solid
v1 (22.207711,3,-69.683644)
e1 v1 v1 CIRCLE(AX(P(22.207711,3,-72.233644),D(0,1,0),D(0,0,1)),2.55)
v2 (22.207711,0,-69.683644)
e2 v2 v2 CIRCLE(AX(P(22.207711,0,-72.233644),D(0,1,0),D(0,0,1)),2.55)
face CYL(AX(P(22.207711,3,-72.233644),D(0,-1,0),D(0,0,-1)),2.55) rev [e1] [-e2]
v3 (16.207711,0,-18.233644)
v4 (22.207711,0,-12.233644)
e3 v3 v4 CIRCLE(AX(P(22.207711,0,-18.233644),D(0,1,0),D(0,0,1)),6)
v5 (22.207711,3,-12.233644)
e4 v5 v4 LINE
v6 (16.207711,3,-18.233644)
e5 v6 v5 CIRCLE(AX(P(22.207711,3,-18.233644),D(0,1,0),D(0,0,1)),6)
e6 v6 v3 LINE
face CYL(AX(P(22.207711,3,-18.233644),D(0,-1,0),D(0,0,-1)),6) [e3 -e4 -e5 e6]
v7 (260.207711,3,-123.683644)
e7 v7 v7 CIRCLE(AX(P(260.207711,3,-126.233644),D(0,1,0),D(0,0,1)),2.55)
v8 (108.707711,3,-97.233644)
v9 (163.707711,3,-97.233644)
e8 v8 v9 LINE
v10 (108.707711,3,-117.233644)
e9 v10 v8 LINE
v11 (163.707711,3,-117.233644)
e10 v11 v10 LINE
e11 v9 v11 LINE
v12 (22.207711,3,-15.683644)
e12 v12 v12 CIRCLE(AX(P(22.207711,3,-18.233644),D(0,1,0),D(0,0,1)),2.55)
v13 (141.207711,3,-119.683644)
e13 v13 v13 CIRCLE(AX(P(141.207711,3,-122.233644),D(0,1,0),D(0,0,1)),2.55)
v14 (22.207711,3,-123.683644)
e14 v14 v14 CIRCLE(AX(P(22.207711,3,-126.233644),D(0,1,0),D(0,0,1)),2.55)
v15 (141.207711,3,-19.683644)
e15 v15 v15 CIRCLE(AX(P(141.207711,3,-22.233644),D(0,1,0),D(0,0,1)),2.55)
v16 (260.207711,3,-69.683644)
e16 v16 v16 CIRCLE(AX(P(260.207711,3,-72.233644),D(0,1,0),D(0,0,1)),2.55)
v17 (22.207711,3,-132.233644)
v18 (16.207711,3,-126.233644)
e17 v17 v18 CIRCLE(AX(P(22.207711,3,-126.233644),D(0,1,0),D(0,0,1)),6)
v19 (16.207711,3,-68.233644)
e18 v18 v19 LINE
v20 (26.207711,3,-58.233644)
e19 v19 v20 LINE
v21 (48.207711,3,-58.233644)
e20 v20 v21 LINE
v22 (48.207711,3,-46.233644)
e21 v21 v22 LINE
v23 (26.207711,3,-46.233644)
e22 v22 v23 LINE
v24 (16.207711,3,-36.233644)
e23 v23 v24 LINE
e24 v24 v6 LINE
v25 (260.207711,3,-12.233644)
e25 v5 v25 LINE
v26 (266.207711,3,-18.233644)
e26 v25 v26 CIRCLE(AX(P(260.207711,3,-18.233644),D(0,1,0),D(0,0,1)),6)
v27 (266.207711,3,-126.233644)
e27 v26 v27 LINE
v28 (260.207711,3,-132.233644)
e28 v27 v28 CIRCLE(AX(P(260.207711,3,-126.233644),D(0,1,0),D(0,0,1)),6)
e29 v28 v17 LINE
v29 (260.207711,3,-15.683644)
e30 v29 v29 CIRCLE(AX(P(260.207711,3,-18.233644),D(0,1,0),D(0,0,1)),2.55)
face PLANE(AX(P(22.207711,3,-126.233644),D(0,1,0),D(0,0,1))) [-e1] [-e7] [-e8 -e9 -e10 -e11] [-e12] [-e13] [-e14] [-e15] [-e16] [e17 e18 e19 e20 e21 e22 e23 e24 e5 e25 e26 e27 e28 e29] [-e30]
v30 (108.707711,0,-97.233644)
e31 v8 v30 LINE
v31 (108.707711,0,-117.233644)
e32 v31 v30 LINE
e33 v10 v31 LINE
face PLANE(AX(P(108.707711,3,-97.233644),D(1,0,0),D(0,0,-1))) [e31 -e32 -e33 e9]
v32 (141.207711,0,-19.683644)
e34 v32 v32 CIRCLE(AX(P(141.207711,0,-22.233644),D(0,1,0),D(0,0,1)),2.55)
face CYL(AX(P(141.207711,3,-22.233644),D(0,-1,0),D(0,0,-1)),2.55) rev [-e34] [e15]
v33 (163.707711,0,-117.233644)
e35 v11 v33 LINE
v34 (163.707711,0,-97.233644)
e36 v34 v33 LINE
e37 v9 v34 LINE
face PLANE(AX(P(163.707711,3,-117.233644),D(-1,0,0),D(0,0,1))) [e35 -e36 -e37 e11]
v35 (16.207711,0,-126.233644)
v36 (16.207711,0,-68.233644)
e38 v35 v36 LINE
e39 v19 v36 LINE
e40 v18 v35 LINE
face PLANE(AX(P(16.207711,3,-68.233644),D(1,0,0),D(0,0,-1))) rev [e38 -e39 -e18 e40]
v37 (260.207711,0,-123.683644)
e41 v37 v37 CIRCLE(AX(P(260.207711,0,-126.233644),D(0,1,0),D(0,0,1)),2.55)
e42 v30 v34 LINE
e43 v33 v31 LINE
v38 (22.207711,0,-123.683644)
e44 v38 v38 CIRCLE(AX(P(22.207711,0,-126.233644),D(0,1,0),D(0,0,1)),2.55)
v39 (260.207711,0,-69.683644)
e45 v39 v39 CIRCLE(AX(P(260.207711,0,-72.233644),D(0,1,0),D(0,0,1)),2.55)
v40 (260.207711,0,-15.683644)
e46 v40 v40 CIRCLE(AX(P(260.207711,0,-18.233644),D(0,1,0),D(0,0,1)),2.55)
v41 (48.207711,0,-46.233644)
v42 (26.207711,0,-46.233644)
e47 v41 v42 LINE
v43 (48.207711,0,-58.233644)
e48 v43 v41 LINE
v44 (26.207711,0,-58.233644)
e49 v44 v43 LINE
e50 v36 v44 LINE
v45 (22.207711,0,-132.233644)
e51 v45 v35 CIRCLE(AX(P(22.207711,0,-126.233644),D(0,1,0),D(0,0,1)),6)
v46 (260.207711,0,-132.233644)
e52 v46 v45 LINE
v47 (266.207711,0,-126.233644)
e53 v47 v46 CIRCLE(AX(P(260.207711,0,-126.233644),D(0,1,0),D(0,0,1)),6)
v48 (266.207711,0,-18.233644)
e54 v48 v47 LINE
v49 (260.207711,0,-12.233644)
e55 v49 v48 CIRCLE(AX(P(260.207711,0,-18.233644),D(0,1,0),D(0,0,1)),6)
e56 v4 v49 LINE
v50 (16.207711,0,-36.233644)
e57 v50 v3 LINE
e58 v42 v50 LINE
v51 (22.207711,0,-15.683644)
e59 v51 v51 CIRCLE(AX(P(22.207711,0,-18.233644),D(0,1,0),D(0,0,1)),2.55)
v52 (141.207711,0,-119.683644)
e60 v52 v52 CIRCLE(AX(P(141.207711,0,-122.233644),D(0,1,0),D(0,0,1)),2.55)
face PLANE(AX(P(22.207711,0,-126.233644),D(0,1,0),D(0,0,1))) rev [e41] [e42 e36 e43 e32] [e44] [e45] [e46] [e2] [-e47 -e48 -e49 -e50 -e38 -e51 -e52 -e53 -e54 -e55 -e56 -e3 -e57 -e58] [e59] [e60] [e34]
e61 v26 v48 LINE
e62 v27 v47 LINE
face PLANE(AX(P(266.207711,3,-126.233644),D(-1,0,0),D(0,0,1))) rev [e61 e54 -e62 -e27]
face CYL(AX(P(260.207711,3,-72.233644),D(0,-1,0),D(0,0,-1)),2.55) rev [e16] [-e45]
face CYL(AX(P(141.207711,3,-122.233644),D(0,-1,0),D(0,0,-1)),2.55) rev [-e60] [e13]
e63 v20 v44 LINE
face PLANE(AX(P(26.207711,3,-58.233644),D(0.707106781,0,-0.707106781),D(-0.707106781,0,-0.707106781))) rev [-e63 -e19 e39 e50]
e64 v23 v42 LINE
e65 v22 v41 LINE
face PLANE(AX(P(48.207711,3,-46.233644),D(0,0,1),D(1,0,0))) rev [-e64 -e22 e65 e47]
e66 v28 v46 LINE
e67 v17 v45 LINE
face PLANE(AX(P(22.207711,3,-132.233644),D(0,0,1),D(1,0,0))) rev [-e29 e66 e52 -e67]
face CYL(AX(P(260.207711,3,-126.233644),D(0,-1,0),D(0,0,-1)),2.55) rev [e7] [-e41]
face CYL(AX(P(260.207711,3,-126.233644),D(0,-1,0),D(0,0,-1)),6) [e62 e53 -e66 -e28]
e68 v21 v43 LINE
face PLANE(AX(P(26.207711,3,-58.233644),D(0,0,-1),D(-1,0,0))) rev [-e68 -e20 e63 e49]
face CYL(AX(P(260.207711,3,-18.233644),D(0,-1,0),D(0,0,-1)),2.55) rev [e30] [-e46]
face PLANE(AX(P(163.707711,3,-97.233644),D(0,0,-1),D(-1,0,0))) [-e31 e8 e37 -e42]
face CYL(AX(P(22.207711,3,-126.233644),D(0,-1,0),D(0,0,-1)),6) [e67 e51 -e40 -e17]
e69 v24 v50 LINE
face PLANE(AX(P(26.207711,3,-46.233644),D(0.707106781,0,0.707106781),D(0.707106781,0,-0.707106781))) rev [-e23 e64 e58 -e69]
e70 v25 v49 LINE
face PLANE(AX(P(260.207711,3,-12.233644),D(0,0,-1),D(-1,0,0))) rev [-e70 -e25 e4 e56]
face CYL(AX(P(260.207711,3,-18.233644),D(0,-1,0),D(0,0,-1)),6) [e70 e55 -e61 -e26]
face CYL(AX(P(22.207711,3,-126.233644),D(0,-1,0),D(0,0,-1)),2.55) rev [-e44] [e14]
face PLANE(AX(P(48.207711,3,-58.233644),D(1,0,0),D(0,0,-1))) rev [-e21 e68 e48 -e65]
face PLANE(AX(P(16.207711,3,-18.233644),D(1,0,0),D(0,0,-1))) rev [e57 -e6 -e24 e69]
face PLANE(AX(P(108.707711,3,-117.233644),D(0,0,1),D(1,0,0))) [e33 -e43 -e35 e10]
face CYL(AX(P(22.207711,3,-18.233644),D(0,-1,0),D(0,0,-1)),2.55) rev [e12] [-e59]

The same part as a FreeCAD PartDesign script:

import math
import FreeCAD as App
import Part
import Sketcher

V = App.Vector


def add_polygon(sketch, points):
    """Adds a closed chain of lines whose ends are joined by coincident constraints."""
    first, n = sketch.GeometryCount, len(points)
    for a, b in zip(points, points[1:] + points[:1]):
        sketch.addGeometry(Part.LineSegment(App.Vector(*a, 0), App.Vector(*b, 0)), False)
    for i in range(n):
        sketch.addConstraint(Sketcher.Constraint("Coincident", first + i, 2, first + (i + 1) % n, 1))

doc = App.newDocument("Part")
body = doc.addObject("PartDesign::Body", "Body")

# Sketch on XZ plane
sketch1 = body.newObject("Sketcher::SketchObject", "Sketch")
sketch1.AttachmentSupport = (doc.getObject("XZ_Plane"), [""])
sketch1.MapMode = "FlatFace"
sketch1.addGeometry(Part.LineSegment(V(16.2, -126.2, 0), V(16.2, -68.2, 0)), False)  # 0
sketch1.addGeometry(Part.LineSegment(V(16.2, -68.2, 0), V(26.2, -58.2, 0)), False)  # 1
sketch1.addGeometry(Part.LineSegment(V(26.2, -58.2, 0), V(48.2, -58.2, 0)), False)  # 2
sketch1.addGeometry(Part.LineSegment(V(48.2, -58.2, 0), V(48.2, -46.2, 0)), False)  # 3
sketch1.addGeometry(Part.LineSegment(V(48.2, -46.2, 0), V(26.2, -46.2, 0)), False)  # 4
sketch1.addGeometry(Part.LineSegment(V(26.2, -46.2, 0), V(16.2, -36.2, 0)), False)  # 5
sketch1.addGeometry(Part.LineSegment(V(16.2, -36.2, 0), V(16.2, -18.2, 0)), False)  # 6
sketch1.addGeometry(Part.ArcOfCircle(Part.Circle(V(22.2, -18.2, 0), V(0, 0, 1), 6), math.radians(90), math.radians(180)), False)  # 7
sketch1.addGeometry(Part.LineSegment(V(22.2, -12.2, 0), V(260.2, -12.2, 0)), False)  # 8
sketch1.addGeometry(Part.ArcOfCircle(Part.Circle(V(260.2, -18.2, 0), V(0, 0, 1), 6), math.radians(0), math.radians(90)), False)  # 9
sketch1.addGeometry(Part.LineSegment(V(266.2, -18.2, 0), V(266.2, -126.2, 0)), False)  # 10
sketch1.addGeometry(Part.ArcOfCircle(Part.Circle(V(260.2, -126.2, 0), V(0, 0, 1), 6), math.radians(-90), math.radians(0)), False)  # 11
sketch1.addGeometry(Part.LineSegment(V(260.2, -132.2, 0), V(22.2, -132.2, 0)), False)  # 12
sketch1.addGeometry(Part.ArcOfCircle(Part.Circle(V(22.2, -126.2, 0), V(0, 0, 1), 6), math.radians(180), math.radians(270)), False)  # 13
sketch1.addGeometry(Part.Circle(V(260.2, -18.2, 0), V(0, 0, 1), 2.5), False)  # 14
sketch1.addGeometry(Part.Circle(V(141.2, -22.2, 0), V(0, 0, 1), 2.5), False)  # 15
sketch1.addGeometry(Part.Circle(V(22.2, -18.2, 0), V(0, 0, 1), 2.5), False)  # 16
sketch1.addGeometry(Part.Circle(V(260.2, -72.2, 0), V(0, 0, 1), 2.5), False)  # 17
sketch1.addGeometry(Part.Circle(V(260.2, -126.2, 0), V(0, 0, 1), 2.5), False)  # 18
sketch1.addGeometry(Part.Circle(V(22.2, -72.2, 0), V(0, 0, 1), 2.5), False)  # 19
add_polygon(sketch1, [(108.7, -97.2), (108.7, -117.2), (163.7, -117.2), (163.7, -97.2)])  # lines 20-23
sketch1.addGeometry(Part.Circle(V(141.2, -122.2, 0), V(0, 0, 1), 2.5), False)  # 24
sketch1.addGeometry(Part.Circle(V(22.2, -126.2, 0), V(0, 0, 1), 2.5), False)  # 25
sketch1.addConstraint(Sketcher.Constraint("Coincident", 0, 2, 1, 1))
sketch1.addConstraint(Sketcher.Constraint("Coincident", 1, 2, 2, 1))
sketch1.addConstraint(Sketcher.Constraint("Coincident", 2, 2, 3, 1))
sketch1.addConstraint(Sketcher.Constraint("Coincident", 3, 2, 4, 1))
sketch1.addConstraint(Sketcher.Constraint("Coincident", 4, 2, 5, 1))
sketch1.addConstraint(Sketcher.Constraint("Coincident", 5, 2, 6, 1))
sketch1.addConstraint(Sketcher.Constraint("Tangent", 6, 2, 7, 2))
sketch1.addConstraint(Sketcher.Constraint("Tangent", 7, 1, 8, 1))
sketch1.addConstraint(Sketcher.Constraint("Tangent", 8, 2, 9, 2))
sketch1.addConstraint(Sketcher.Constraint("Tangent", 9, 1, 10, 1))
sketch1.addConstraint(Sketcher.Constraint("Tangent", 10, 2, 11, 2))
sketch1.addConstraint(Sketcher.Constraint("Tangent", 11, 1, 12, 1))
sketch1.addConstraint(Sketcher.Constraint("Tangent", 12, 2, 13, 2))
sketch1.addConstraint(Sketcher.Constraint("Tangent", 13, 1, 0, 1))
sketch1.addConstraint(Sketcher.Constraint("Vertical", 0))
sketch1.addConstraint(Sketcher.Constraint("Horizontal", 2))
sketch1.addConstraint(Sketcher.Constraint("Vertical", 3))
sketch1.addConstraint(Sketcher.Constraint("Horizontal", 4))
sketch1.addConstraint(Sketcher.Constraint("Vertical", 6))
sketch1.addConstraint(Sketcher.Constraint("Horizontal", 8))
sketch1.addConstraint(Sketcher.Constraint("Vertical", 10))
sketch1.addConstraint(Sketcher.Constraint("Horizontal", 12))
sketch1.addConstraint(Sketcher.Constraint("Vertical", 20))
sketch1.addConstraint(Sketcher.Constraint("Horizontal", 21))
sketch1.addConstraint(Sketcher.Constraint("Vertical", 22))
sketch1.addConstraint(Sketcher.Constraint("Horizontal", 23))
sketch1.addConstraint(Sketcher.Constraint("Coincident", 14, 3, 9, 3))
sketch1.addConstraint(Sketcher.Constraint("Coincident", 16, 3, 7, 3))
sketch1.addConstraint(Sketcher.Constraint("Coincident", 18, 3, 11, 3))
sketch1.addConstraint(Sketcher.Constraint("Coincident", 25, 3, 13, 3))
sketch1.addConstraint(Sketcher.Constraint("Equal", 7, 9))
sketch1.addConstraint(Sketcher.Constraint("Equal", 9, 11))
sketch1.addConstraint(Sketcher.Constraint("Equal", 11, 13))
sketch1.addConstraint(Sketcher.Constraint("Equal", 14, 15))
sketch1.addConstraint(Sketcher.Constraint("Equal", 15, 16))
sketch1.addConstraint(Sketcher.Constraint("Equal", 16, 17))
sketch1.addConstraint(Sketcher.Constraint("Equal", 17, 18))
sketch1.addConstraint(Sketcher.Constraint("Equal", 18, 19))
sketch1.addConstraint(Sketcher.Constraint("Equal", 19, 24))
sketch1.addConstraint(Sketcher.Constraint("Equal", 24, 25))
sketch1.addConstraint(Sketcher.Constraint("Perpendicular", 1, 5))
sketch1.addConstraint(Sketcher.Constraint("Horizontal", 17, 3, 19, 3))
sketch1.addConstraint(Sketcher.Constraint("Vertical", 7, 3, 13, 3))
sketch1.addConstraint(Sketcher.Constraint("Vertical", 14, 3, 17, 3))
sketch1.addConstraint(Sketcher.Constraint("Vertical", 16, 3, 19, 3))
sketch1.addConstraint(Sketcher.Constraint("Vertical", 15, 3, 24, 3))
sketch1.addConstraint(Sketcher.Constraint("Vertical", 1, 2, 4, 2))
sketch1.addConstraint(Sketcher.Constraint("Equal", 1, 5))
sketch1.addConstraint(Sketcher.Constraint("Radius", 7, 6.0))
sketch1.addConstraint(Sketcher.Constraint("Diameter", 14, 5.1))
sketch1.addConstraint(Sketcher.Constraint("DistanceX", 2, 1, 2, 2, 22.0))
sketch1.addConstraint(Sketcher.Constraint("DistanceX", 8, 1, 8, 2, 238.0))
sketch1.addConstraint(Sketcher.Constraint("DistanceX", 21, 1, 21, 2, 55.0))
sketch1.addConstraint(Sketcher.Constraint("DistanceY", 0, 1, 0, 2, 58.0))
sketch1.addConstraint(Sketcher.Constraint("DistanceY", 3, 1, 3, 2, 12.0))
sketch1.addConstraint(Sketcher.Constraint("DistanceY", 6, 1, 6, 2, 18.0))
sketch1.addConstraint(Sketcher.Constraint("DistanceY", 10, 2, 10, 1, 108.0))
sketch1.addConstraint(Sketcher.Constraint("DistanceY", 20, 2, 20, 1, 20.0))
sketch1.addConstraint(Sketcher.Constraint("DistanceX", 15, 3, 14, 3, 119.0))
sketch1.addConstraint(Sketcher.Constraint("DistanceY", 15, 3, 14, 3, 4.0))
sketch1.addConstraint(Sketcher.Constraint("DistanceY", 17, 3, 14, 3, 54.0))
sketch1.addConstraint(Sketcher.Constraint("DistanceY", 24, 3, 15, 3, 100.0))
sketch1.addConstraint(Sketcher.Constraint("DistanceY", 24, 3, 20, 2, 5.0))
sketch1.addConstraint(Sketcher.Constraint("DistanceX", 20, 2, 24, 3, 32.5))
sketch1.addConstraint(Sketcher.Constraint("DistanceX", -1, 1, 7, 3, 22.207711))
sketch1.addConstraint(Sketcher.Constraint("DistanceY", 7, 3, -1, 1, 18.233644))
pad1 = body.newObject("PartDesign::Pad", "Pad")
pad1.Profile = sketch1
pad1.Length = 3
pad1.Reversed = True

doc.recompute()
